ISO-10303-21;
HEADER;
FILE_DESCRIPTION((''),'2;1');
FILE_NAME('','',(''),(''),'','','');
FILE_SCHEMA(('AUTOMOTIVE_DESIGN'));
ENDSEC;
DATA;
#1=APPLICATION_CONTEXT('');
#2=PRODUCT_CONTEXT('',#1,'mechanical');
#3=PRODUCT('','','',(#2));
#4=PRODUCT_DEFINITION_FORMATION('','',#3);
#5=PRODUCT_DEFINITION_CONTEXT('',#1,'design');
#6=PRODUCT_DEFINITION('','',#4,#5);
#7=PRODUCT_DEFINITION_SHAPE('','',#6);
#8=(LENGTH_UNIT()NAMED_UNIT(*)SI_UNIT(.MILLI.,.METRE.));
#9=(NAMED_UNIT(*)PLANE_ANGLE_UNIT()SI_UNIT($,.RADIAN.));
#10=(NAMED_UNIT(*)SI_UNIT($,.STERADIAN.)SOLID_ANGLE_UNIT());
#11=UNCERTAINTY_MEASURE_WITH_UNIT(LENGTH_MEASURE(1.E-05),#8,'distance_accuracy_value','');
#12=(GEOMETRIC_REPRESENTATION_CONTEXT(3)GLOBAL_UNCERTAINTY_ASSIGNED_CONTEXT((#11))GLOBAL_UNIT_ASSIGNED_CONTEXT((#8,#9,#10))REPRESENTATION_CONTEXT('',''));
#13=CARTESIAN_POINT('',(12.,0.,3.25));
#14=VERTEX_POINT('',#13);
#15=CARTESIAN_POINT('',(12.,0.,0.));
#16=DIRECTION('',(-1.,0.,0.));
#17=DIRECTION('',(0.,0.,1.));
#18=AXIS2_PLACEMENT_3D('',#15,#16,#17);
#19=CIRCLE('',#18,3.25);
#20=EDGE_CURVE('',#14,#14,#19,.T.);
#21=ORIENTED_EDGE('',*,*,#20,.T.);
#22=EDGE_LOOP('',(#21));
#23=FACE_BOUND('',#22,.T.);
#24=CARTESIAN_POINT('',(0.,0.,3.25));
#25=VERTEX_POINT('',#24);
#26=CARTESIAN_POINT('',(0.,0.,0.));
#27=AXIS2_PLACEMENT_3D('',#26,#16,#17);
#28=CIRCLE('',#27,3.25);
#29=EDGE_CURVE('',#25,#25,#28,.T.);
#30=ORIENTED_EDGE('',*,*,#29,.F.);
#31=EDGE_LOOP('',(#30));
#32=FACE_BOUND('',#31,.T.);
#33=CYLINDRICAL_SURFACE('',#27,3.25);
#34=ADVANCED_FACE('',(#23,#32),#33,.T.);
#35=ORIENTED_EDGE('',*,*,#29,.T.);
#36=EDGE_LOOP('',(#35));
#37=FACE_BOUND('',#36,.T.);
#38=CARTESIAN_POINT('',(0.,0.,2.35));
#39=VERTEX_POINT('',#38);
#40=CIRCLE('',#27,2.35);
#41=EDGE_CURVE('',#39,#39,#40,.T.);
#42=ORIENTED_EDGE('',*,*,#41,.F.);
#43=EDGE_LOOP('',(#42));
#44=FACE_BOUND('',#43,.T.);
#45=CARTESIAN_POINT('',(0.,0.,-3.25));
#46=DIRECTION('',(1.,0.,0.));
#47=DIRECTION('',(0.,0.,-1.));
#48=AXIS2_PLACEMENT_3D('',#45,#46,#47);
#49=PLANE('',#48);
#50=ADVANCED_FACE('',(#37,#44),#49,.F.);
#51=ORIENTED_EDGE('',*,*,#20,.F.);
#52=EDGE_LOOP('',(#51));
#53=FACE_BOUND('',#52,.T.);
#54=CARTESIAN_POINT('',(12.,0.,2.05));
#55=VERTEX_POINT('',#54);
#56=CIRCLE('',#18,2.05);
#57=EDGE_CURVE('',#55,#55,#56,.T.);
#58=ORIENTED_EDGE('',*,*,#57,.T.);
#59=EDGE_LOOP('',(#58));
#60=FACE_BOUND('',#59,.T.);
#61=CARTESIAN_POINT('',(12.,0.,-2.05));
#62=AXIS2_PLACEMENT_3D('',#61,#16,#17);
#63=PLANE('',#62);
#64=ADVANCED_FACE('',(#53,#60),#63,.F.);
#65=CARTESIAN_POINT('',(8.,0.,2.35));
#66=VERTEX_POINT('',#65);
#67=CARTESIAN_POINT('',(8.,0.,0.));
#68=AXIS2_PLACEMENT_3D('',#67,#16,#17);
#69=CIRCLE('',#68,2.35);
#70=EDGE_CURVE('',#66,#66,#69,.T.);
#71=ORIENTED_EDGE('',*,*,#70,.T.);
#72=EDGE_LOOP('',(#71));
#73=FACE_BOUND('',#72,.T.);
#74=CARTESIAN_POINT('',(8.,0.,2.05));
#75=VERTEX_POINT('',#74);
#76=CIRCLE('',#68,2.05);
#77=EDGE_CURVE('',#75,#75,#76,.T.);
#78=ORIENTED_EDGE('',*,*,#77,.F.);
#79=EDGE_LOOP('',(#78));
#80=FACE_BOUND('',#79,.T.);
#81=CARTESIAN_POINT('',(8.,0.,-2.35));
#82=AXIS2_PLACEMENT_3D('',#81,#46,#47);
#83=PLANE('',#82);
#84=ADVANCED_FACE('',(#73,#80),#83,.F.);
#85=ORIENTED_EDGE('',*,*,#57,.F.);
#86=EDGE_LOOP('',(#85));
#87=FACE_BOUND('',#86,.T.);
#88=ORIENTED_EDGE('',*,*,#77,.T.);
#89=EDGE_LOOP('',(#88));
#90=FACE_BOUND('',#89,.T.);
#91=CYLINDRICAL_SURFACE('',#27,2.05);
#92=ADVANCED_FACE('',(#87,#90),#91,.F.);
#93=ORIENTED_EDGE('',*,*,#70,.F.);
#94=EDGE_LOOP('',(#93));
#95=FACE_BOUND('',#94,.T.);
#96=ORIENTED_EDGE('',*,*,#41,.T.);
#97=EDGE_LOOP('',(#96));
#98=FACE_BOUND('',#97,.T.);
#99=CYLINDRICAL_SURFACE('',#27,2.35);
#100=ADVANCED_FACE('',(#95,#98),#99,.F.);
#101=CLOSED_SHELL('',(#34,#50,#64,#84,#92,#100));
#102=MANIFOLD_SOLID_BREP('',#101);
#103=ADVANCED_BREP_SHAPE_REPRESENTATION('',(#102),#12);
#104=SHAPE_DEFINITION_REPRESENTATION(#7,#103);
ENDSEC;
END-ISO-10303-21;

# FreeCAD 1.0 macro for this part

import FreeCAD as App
import Part
import Sketcher
from FreeCAD import Vector
Q = App.Units.Quantity


def add_polygon(sketch, points):
    """Adds a closed chain of lines whose ends are joined by coincident constraints."""
    first, n = sketch.GeometryCount, len(points)
    for a, b in zip(points, points[1:] + points[:1]):
        sketch.addGeometry(Part.LineSegment(App.Vector(*a, 0), App.Vector(*b, 0)), False)
    for i in range(n):
        sketch.addConstraint(Sketcher.Constraint("Coincident", first + i, 2, first + (i + 1) % n, 1))

doc = App.newDocument("Part")
body = doc.addObject("PartDesign::Body", "Body")

# Sketch on XZ plane
sketch1 = body.newObject("Sketcher::SketchObject", "Sketch")
sketch1.AttachmentSupport = (doc.getObject("XZ_Plane"), [""])
sketch1.MapMode = "FlatFace"
add_polygon(sketch1, [(12, -2.05), (12, -3.25), (0, -3.25), (0, -2.35), (8, -2.35), (8, -2.05)])  # lines 0-5
sketch1.addConstraint(Sketcher.Constraint("Vertical", 0))
sketch1.addConstraint(Sketcher.Constraint("Horizontal", 1))
sketch1.addConstraint(Sketcher.Constraint("Vertical", 2))
sketch1.addConstraint(Sketcher.Constraint("Horizontal", 3))
sketch1.addConstraint(Sketcher.Constraint("Vertical", 4))
sketch1.addConstraint(Sketcher.Constraint("Horizontal", 5))
sketch1.addConstraint(Sketcher.Constraint("PointOnObject", 1, 2, -2))
sketch1.addConstraint(Sketcher.Constraint("DistanceX", 1, 2, 1, 1, Q("12 mm")))
sketch1.addConstraint(Sketcher.Constraint("DistanceX", 3, 1, 3, 2, Q("8 mm")))
sketch1.addConstraint(Sketcher.Constraint("DistanceY", 0, 2, 0, 1, Q("1.2 mm")))
sketch1.addConstraint(Sketcher.Constraint("DistanceY", 2, 1, 2, 2, Q("0.9 mm")))
sketch1.addConstraint(Sketcher.Constraint("DistanceY", 0, 2, -1, 1, Q("3.25 mm")))
revolution = body.newObject("PartDesign::Revolution", "Revolution")
revolution.Profile = sketch1
revolution.ReferenceAxis = (sketch1, ["H_Axis"])
revolution.Angle = 360

doc.recompute()
